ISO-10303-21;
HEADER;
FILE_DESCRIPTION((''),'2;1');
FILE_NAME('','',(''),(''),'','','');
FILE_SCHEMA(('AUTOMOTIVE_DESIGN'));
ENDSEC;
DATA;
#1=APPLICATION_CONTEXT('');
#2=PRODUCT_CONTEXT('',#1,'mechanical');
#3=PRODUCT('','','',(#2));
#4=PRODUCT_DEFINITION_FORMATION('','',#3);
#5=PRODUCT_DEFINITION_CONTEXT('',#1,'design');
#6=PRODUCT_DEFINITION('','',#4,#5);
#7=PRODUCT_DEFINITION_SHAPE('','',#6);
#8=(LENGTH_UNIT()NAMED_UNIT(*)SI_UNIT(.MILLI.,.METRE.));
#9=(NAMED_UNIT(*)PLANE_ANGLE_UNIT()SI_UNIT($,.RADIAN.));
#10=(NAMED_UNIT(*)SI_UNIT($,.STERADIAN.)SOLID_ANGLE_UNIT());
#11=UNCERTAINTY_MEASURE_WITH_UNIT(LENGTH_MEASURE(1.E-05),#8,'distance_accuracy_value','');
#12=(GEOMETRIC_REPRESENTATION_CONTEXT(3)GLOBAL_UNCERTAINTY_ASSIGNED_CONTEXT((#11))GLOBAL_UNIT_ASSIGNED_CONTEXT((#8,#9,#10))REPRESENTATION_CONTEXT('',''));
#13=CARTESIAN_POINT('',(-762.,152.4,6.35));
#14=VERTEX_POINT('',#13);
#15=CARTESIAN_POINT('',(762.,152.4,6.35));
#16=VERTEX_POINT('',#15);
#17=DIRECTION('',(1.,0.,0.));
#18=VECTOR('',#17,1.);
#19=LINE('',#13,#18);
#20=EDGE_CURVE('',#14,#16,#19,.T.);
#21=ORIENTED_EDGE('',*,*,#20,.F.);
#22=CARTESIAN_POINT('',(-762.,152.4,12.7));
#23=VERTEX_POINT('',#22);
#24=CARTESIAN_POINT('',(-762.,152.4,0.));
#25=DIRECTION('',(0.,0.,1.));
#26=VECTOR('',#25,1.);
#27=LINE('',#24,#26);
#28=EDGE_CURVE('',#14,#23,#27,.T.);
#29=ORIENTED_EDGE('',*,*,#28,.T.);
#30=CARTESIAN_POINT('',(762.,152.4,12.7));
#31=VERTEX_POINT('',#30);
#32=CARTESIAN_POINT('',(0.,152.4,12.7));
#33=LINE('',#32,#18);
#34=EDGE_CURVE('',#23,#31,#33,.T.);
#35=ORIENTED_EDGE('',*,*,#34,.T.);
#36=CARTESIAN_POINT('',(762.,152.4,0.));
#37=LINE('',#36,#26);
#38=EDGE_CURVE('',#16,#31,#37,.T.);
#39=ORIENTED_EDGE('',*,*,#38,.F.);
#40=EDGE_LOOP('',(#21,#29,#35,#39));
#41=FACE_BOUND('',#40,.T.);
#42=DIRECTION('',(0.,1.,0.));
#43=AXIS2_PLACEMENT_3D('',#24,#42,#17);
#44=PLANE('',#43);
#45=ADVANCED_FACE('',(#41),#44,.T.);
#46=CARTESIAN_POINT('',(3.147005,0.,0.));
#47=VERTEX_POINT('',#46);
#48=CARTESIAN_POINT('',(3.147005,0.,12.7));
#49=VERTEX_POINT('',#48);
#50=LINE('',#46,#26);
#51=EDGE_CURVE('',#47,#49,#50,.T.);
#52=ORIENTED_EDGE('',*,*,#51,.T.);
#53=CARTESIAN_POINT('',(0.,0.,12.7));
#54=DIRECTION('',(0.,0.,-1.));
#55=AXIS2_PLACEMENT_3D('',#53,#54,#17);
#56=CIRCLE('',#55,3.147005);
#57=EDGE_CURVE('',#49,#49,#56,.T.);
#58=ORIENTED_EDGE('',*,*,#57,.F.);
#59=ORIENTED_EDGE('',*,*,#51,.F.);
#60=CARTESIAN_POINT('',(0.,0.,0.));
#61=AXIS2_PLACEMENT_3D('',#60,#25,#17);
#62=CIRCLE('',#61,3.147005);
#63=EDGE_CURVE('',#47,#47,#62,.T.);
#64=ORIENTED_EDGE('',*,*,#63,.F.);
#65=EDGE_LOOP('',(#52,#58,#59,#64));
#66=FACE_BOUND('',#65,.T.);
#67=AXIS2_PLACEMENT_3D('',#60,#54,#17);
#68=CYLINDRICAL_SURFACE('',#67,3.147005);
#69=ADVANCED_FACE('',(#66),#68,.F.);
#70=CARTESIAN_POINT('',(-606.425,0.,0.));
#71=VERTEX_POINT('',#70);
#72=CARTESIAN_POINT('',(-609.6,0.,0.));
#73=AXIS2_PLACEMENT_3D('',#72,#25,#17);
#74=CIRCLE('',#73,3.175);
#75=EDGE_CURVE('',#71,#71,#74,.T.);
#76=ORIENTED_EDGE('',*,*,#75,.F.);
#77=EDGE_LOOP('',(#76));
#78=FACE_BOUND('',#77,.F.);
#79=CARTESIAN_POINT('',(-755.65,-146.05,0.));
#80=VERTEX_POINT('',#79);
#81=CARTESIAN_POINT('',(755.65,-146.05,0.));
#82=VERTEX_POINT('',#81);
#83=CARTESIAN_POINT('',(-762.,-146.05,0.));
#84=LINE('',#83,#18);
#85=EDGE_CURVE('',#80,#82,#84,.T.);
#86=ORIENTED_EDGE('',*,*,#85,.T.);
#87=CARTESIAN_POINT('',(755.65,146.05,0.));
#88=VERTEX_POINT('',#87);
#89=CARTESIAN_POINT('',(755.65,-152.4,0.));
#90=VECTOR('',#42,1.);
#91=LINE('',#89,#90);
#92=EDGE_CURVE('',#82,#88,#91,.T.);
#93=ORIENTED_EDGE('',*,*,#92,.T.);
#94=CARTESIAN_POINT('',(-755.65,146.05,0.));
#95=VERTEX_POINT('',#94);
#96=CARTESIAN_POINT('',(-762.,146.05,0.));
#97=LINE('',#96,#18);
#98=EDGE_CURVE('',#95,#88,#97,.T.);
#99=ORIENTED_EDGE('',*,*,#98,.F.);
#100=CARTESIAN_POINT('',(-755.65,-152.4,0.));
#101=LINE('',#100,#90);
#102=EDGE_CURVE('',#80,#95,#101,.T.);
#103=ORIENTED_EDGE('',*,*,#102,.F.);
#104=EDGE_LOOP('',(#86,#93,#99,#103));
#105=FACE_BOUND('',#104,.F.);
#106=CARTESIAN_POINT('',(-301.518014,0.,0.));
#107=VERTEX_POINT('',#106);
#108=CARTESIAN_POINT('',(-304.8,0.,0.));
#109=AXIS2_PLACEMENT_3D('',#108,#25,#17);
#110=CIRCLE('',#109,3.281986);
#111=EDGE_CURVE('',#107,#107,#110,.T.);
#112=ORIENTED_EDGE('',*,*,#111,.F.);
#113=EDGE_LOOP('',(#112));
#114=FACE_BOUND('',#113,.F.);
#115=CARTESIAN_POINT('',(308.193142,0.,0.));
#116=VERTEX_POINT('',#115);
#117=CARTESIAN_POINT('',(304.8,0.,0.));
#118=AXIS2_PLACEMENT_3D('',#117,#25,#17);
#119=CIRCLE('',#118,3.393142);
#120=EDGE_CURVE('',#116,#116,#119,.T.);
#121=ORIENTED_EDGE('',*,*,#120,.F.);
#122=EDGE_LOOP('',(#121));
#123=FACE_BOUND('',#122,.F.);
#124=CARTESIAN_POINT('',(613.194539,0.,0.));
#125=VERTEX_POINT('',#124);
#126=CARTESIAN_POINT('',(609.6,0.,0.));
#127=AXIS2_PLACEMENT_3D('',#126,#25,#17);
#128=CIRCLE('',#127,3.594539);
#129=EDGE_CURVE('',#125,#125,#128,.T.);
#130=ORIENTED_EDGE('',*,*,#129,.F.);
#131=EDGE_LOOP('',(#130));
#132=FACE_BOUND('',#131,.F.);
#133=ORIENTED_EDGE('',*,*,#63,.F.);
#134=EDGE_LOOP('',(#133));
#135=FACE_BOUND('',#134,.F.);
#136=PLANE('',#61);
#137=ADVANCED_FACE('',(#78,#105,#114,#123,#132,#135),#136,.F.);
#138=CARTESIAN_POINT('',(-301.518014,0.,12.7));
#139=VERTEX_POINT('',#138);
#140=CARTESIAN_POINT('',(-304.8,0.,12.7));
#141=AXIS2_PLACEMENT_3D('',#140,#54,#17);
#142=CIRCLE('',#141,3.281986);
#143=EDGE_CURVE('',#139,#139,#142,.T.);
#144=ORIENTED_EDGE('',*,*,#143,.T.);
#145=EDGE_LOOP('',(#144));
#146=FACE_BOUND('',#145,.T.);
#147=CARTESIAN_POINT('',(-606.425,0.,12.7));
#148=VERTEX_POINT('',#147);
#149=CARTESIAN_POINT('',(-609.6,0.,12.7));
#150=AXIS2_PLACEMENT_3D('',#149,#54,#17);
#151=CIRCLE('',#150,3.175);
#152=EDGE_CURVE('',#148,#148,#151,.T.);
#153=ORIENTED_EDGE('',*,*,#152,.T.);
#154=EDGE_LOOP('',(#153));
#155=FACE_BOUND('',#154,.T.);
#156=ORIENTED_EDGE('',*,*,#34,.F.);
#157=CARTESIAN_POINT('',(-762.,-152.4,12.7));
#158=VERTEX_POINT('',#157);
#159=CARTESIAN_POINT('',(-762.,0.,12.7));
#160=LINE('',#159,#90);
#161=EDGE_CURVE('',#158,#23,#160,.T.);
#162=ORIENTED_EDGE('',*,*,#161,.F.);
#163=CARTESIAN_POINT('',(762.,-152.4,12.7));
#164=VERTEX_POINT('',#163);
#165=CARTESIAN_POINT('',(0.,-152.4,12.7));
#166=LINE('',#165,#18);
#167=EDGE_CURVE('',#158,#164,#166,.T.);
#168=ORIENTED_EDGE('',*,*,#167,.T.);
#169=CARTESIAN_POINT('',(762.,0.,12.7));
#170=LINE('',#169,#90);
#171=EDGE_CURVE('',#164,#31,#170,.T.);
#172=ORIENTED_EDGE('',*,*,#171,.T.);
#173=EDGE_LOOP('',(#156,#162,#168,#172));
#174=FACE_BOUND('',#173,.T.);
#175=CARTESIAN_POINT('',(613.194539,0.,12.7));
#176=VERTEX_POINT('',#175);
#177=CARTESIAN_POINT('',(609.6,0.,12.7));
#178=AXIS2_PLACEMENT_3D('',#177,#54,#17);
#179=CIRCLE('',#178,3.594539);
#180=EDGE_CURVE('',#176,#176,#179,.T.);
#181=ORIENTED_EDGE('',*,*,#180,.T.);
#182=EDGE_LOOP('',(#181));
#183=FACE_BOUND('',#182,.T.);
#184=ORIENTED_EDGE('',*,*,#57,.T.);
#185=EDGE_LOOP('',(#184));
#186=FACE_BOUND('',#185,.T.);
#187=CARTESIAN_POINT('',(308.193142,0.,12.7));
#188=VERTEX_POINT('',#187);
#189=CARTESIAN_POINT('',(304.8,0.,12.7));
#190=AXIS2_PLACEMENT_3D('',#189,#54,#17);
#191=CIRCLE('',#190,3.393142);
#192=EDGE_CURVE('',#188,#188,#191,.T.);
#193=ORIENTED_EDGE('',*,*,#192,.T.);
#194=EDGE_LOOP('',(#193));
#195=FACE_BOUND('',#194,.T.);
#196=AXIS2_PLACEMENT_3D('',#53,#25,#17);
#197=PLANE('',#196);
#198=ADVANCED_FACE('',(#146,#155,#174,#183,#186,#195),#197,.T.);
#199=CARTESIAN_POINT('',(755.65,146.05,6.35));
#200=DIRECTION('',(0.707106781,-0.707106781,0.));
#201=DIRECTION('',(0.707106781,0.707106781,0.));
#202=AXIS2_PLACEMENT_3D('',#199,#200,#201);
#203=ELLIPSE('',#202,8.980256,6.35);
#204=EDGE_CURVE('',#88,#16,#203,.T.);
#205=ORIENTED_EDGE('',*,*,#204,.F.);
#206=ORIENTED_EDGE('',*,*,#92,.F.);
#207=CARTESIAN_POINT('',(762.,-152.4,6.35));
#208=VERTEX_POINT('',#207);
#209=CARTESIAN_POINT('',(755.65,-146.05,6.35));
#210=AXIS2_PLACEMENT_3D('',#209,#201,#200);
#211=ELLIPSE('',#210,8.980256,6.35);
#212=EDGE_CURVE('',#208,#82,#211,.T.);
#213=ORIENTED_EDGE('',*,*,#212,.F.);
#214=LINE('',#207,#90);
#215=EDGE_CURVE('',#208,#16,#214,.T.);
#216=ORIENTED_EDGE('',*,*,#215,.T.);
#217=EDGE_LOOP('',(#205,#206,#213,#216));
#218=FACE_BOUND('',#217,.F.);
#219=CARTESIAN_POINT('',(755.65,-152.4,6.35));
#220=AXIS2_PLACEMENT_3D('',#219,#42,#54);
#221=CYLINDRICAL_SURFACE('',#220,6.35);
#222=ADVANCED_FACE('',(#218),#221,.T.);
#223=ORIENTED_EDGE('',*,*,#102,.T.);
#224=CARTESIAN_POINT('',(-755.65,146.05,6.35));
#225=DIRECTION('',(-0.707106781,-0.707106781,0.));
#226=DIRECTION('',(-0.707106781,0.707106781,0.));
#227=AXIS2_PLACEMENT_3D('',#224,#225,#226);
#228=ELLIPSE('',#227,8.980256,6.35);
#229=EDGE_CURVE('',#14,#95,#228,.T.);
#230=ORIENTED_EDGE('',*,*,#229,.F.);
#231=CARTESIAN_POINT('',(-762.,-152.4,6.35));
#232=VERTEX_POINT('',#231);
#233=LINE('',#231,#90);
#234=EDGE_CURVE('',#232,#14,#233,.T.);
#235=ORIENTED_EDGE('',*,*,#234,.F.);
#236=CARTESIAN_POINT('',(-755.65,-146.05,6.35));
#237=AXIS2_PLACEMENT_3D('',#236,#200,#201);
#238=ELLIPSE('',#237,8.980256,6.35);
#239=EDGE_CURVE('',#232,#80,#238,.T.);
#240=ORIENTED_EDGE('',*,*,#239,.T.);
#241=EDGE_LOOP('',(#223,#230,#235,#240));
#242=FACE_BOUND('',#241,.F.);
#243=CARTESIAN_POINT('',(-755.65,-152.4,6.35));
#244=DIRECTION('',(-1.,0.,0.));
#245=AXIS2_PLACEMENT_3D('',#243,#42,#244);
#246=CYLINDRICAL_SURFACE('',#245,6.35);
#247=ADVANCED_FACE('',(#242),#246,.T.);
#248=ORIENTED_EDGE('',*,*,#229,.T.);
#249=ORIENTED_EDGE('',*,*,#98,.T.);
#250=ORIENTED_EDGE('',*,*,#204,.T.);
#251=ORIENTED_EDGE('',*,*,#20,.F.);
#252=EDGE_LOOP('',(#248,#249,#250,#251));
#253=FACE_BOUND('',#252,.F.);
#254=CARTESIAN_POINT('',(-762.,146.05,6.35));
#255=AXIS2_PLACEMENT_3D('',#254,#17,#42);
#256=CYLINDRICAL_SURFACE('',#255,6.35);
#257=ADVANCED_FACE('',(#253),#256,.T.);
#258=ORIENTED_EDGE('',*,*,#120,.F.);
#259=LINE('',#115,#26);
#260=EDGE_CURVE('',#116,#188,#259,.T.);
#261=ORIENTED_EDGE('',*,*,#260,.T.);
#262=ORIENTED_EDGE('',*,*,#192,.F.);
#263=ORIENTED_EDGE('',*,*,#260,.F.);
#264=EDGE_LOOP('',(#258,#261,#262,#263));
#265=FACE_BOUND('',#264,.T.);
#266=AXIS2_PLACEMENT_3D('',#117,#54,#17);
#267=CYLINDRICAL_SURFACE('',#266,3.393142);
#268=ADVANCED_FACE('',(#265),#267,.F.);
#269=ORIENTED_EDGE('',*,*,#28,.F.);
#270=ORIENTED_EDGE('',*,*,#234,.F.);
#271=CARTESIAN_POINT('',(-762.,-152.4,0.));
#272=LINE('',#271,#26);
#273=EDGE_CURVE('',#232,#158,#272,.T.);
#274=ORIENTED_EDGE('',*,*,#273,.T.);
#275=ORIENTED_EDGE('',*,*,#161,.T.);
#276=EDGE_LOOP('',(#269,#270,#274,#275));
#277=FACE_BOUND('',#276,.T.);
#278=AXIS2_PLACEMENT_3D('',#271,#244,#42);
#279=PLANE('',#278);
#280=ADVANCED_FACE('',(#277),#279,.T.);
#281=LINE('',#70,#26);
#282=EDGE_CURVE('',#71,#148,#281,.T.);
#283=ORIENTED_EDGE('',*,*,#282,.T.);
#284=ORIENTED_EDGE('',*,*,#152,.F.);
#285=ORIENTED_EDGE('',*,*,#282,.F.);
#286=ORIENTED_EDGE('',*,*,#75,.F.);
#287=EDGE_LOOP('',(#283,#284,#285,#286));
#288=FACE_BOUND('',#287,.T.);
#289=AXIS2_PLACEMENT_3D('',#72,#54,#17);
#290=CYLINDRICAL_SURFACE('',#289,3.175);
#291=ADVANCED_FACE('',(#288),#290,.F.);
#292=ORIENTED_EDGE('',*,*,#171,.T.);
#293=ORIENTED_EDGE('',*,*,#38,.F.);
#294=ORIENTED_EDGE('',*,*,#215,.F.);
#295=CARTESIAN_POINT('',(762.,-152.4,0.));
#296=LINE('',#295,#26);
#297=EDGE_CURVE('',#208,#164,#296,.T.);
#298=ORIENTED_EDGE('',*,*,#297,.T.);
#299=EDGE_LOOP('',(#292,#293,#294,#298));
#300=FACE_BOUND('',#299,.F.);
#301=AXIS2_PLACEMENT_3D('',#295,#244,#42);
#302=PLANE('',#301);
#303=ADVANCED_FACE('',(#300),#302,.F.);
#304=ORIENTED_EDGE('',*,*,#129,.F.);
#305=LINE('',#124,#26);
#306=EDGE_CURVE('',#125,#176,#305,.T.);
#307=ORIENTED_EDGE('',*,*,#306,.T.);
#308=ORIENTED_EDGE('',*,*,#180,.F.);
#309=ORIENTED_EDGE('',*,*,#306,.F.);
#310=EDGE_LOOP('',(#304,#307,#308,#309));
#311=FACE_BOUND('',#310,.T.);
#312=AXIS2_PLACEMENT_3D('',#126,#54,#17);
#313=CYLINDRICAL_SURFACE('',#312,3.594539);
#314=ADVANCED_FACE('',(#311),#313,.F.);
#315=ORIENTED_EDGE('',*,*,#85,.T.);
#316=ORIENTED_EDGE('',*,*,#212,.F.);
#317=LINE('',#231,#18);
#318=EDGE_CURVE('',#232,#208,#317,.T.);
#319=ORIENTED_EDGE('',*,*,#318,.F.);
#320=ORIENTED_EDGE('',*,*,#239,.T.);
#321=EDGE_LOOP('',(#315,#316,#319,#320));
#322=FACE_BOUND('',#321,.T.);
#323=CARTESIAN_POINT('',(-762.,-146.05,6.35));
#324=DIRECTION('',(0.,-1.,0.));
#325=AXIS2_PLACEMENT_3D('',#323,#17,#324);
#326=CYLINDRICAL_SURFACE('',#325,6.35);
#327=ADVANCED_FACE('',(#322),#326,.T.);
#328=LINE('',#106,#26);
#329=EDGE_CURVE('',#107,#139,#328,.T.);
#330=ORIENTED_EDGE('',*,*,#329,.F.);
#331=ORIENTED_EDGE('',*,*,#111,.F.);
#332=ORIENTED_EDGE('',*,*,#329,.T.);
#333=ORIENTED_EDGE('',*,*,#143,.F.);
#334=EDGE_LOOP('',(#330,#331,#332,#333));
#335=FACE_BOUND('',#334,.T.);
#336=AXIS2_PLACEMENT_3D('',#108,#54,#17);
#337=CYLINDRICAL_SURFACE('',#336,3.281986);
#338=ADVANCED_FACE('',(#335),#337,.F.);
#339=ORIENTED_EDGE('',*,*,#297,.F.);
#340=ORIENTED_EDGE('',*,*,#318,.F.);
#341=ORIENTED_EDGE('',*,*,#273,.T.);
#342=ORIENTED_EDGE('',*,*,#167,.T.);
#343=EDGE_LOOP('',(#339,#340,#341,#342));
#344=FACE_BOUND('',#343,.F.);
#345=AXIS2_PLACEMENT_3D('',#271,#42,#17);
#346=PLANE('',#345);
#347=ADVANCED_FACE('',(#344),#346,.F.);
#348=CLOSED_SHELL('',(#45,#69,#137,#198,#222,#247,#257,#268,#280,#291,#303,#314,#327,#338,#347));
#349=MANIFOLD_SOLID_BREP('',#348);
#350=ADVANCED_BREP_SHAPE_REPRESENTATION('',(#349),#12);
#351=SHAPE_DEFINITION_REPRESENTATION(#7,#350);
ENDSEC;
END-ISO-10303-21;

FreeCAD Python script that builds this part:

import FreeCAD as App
import Part
import Sketcher
Q = App.Units.Quantity


def edges_at(feature, points):
    """Names of the edges that pass closest to the given points."""
    edges = feature.Shape.Edges
    near = lambda p: min(range(len(edges)), key=lambda i: edges[i].distToShape(Part.Vertex(*p))[0])
    return sorted({f"Edge{near(p) + 1}" for p in points})

doc = App.newDocument("Part")
params = doc.addObject("Spreadsheet::Sheet", "Params")
for row, (alias, value) in enumerate([
    ("sketch1_width", "60 in"),
    ("sketch1_height", "12 in"),
    ("pad1_length", "0.5 in"),
    ("sketch2_diameter", "0.25 in"),
    ("fillet_radius", "0.25 in"),
], start=1):
    params.set(f"A{row}", alias)
    params.set(f"B{row}", "=" + value)
    params.setAlias(f"B{row}", alias)

body = doc.addObject("PartDesign::Body", "Body")

# Sketch on XY plane
sketch1 = body.newObject("Sketcher::SketchObject", "Sketch")
sketch1.AttachmentSupport = (doc.getObject("XY_Plane"), [""])
sketch1.MapMode = "FlatFace"
sketch1.addGeometry([
    Part.LineSegment(App.Vector(-762, 152, 0), App.Vector(-762, -152, 0)),
    Part.LineSegment(App.Vector(-762, -152, 0), App.Vector(762, -152, 0)),
    Part.LineSegment(App.Vector(762, -152, 0), App.Vector(762, 152, 0)),
    Part.LineSegment(App.Vector(762, 152, 0), App.Vector(-762, 152, 0)),
], False)
sketch1.addConstraint([
    Sketcher.Constraint("Coincident", 0, 2, 1, 1),
    Sketcher.Constraint("Coincident", 1, 2, 2, 1),
    Sketcher.Constraint("Coincident", 2, 2, 3, 1),
    Sketcher.Constraint("Coincident", 3, 2, 0, 1),
    Sketcher.Constraint("Vertical", 0),
    Sketcher.Constraint("Horizontal", 1),
    Sketcher.Constraint("Vertical", 2),
    Sketcher.Constraint("Horizontal", 3),
    Sketcher.Constraint("Symmetric", 0, 2, 2, 2, -1, 1),
    Sketcher.Constraint("DistanceX", 1, 1, 1, 2, Q("60 in")),
    Sketcher.Constraint("DistanceY", 0, 2, 0, 1, Q("12 in")),
])
sketch1.setExpression("Constraints[9]", "Params.sketch1_width")
sketch1.setExpression("Constraints[10]", "Params.sketch1_height")
pad1 = body.newObject("PartDesign::Pad", "Pad")
pad1.Profile = sketch1
pad1.setExpression("Length", "Params.pad1_length")

# Sketch on XY plane
sketch2 = body.newObject("Sketcher::SketchObject", "Sketch001")
sketch2.AttachmentSupport = (doc.getObject("XY_Plane"), [""])
sketch2.MapMode = "FlatFace"
sketch2.addGeometry([
    Part.Circle(App.Vector(0, 0, 0), App.Vector(0, 0, 1), 3.1),  # 0
    Part.Circle(App.Vector(304.8, 0, 0), App.Vector(0, 0, 1), 3.4),  # 1
    Part.Circle(App.Vector(609.6, 0, 0), App.Vector(0, 0, 1), 3.6),  # 2
    Part.Circle(App.Vector(-304.8, 0, 0), App.Vector(0, 0, 1), 3.3),  # 3
    Part.Circle(App.Vector(-609.6, 0, 0), App.Vector(0, 0, 1), 3.2),  # 4
], False)
sketch2.addConstraint([
    Sketcher.Constraint("Coincident", 0, 3, -1, 1),
    Sketcher.Constraint("Symmetric", 1, 3, 3, 3, -1, 1),
    Sketcher.Constraint("Symmetric", 2, 3, 4, 3, -1, 1),
    Sketcher.Constraint("PointOnObject", 1, 3, -1),
    Sketcher.Constraint("PointOnObject", 2, 3, -1),
    Sketcher.Constraint("Diameter", 4, Q("0.25 in")),
    Sketcher.Constraint("DistanceX", -1, 1, 1, 3, Q("12 in")),
    Sketcher.Constraint("DistanceX", -1, 1, 2, 3, Q("24 in")),
    Sketcher.Constraint("Diameter", 0, 6.29401),
    Sketcher.Constraint("Diameter", 2, 7.189079),
    Sketcher.Constraint("Diameter", 1, 6.786283),
    Sketcher.Constraint("Diameter", 3, 6.563972),
])
sketch2.setExpression("Constraints[5]", "Params.sketch2_diameter")
pocket1 = body.newObject("PartDesign::Pocket", "Pocket")
pocket1.Profile = sketch2
pocket1.Type = "ThroughAll"
pocket1.Midplane = True
doc.recompute()

fillet = body.newObject("PartDesign::Fillet", "Fillet")
fillet.Base = (pocket1, edges_at(pocket1, [
    (0, -152.4, 0),
    (762, 0, 0),
    (-762, 0, 0),
    (0, 152.4, 0),
]))
fillet.setExpression("Radius", "Params.fillet_radius")

doc.recompute()
